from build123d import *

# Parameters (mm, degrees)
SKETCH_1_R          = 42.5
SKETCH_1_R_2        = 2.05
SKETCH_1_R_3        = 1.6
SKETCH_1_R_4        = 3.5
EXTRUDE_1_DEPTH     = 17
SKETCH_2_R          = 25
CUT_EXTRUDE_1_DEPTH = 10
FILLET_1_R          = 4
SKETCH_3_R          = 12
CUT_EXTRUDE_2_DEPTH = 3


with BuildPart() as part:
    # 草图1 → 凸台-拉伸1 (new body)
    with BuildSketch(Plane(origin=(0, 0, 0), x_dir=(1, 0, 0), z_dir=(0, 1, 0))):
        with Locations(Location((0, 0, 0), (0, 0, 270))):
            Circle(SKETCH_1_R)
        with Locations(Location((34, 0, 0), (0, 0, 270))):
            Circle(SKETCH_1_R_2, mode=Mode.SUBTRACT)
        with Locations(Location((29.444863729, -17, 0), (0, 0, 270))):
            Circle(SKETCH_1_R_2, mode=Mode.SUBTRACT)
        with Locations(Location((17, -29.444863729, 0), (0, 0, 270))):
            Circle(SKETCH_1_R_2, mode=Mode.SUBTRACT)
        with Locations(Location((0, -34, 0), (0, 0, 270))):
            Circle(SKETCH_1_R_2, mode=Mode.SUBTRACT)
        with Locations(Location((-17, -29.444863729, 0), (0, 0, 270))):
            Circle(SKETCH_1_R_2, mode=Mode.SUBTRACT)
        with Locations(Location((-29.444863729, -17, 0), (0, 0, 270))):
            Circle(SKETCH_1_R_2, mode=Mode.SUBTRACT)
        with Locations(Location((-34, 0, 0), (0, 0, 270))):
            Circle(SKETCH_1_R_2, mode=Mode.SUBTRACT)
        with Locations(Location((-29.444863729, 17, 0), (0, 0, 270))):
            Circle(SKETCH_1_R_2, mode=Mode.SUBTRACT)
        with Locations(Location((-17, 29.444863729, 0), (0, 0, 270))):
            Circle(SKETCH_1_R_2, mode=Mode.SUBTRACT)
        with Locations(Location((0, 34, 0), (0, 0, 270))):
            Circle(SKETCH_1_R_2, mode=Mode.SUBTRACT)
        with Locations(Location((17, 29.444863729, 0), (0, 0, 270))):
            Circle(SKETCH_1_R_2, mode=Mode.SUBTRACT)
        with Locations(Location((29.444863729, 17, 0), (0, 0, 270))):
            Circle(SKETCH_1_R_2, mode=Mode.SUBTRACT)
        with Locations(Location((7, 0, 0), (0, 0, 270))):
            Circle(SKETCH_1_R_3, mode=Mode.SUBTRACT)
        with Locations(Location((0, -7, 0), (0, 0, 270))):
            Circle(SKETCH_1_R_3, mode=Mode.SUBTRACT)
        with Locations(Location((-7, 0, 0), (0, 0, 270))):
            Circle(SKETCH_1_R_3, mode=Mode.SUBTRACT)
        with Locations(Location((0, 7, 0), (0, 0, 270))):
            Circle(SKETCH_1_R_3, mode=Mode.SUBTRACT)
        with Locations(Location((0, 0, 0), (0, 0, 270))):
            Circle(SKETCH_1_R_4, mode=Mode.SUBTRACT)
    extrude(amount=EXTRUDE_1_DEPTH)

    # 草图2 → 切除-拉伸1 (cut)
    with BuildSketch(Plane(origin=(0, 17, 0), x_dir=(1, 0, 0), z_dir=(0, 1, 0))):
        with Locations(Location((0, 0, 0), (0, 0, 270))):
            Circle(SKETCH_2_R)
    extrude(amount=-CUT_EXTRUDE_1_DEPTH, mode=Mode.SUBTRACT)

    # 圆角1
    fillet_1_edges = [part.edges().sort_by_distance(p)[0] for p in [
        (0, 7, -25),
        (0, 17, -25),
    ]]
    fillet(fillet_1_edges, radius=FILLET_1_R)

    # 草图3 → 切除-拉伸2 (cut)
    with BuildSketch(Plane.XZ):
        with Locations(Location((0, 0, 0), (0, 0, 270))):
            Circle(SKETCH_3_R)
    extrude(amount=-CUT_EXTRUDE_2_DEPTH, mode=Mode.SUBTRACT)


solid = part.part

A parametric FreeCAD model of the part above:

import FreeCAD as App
import Part
import Sketcher
from FreeCAD import Vector


def edges_at(feature, points):
    """Names of the edges that pass closest to the given points."""
    edges = feature.Shape.Edges
    near = lambda p: min(range(len(edges)), key=lambda i: edges[i].distToShape(Part.Vertex(*p))[0])
    return sorted({f"Edge{near(p) + 1}" for p in points})

doc = App.newDocument("Part")
body = doc.addObject("PartDesign::Body", "Body")

# Sketch on XZ plane
sketch1 = body.newObject("Sketcher::SketchObject", "Sketch")
sketch1.AttachmentSupport = (doc.getObject("XZ_Plane"), [""])
sketch1.MapMode = "FlatFace"
sketch1.addGeometry(Part.Circle(Vector(0, 0, 0), Vector(0, 0, 1), 42.5), False)
sketch1.addGeometry(Part.Circle(Vector(-29.4, -17, 0), Vector(0, 0, 1), 2), False)
sketch1.addGeometry(Part.Circle(Vector(-17, -29.4, 0), Vector(0, 0, 1), 2), False)
sketch1.addGeometry(Part.Circle(Vector(0, -34, 0), Vector(0, 0, 1), 2), False)
sketch1.addGeometry(Part.Circle(Vector(-34, 0, 0), Vector(0, 0, 1), 2), False)
sketch1.addGeometry(Part.Circle(Vector(-29.4, 17, 0), Vector(0, 0, 1), 2), False)
sketch1.addGeometry(Part.Circle(Vector(-7, 0, 0), Vector(0, 0, 1), 1.6), False)
sketch1.addGeometry(Part.Circle(Vector(-17, 29.4, 0), Vector(0, 0, 1), 2), False)
sketch1.addGeometry(Part.Circle(Vector(17, -29.4, 0), Vector(0, 0, 1), 2), False)
sketch1.addGeometry(Part.Circle(Vector(0, -7, 0), Vector(0, 0, 1), 1.6), False)
sketch1.addGeometry(Part.Circle(Vector(29.4, -17, 0), Vector(0, 0, 1), 2), False)
sketch1.addGeometry(Part.Circle(Vector(34, 0, 0), Vector(0, 0, 1), 2), False)
sketch1.addGeometry(Part.Circle(Vector(0, 0, 0), Vector(0, 0, 1), 3.5), False)
sketch1.addGeometry(Part.Circle(Vector(0, 7, 0), Vector(0, 0, 1), 1.6), False)
sketch1.addGeometry(Part.Circle(Vector(7, 0, 0), Vector(0, 0, 1), 1.6), False)
sketch1.addGeometry(Part.Circle(Vector(0, 34, 0), Vector(0, 0, 1), 2), False)
sketch1.addGeometry(Part.Circle(Vector(17, 29.4, 0), Vector(0, 0, 1), 2), False)
sketch1.addGeometry(Part.Circle(Vector(29.4, 17, 0), Vector(0, 0, 1), 2), False)
sketch1.addConstraint(Sketcher.Constraint("Coincident", 0, 3, -1, 1))
sketch1.addConstraint(Sketcher.Constraint("Coincident", 12, 3, -1, 1))
sketch1.addConstraint(Sketcher.Constraint("Equal", 1, 2))
sketch1.addConstraint(Sketcher.Constraint("Equal", 2, 3))
sketch1.addConstraint(Sketcher.Constraint("Equal", 3, 4))
sketch1.addConstraint(Sketcher.Constraint("Equal", 4, 5))
sketch1.addConstraint(Sketcher.Constraint("Equal", 5, 7))
sketch1.addConstraint(Sketcher.Constraint("Equal", 7, 8))
sketch1.addConstraint(Sketcher.Constraint("Equal", 6, 9))
sketch1.addConstraint(Sketcher.Constraint("Equal", 8, 10))
sketch1.addConstraint(Sketcher.Constraint("Equal", 10, 11))
sketch1.addConstraint(Sketcher.Constraint("Equal", 9, 13))
sketch1.addConstraint(Sketcher.Constraint("Equal", 13, 14))
sketch1.addConstraint(Sketcher.Constraint("Equal", 11, 15))
sketch1.addConstraint(Sketcher.Constraint("Equal", 15, 16))
sketch1.addConstraint(Sketcher.Constraint("Equal", 16, 17))
sketch1.addConstraint(Sketcher.Constraint("Symmetric", 7, 3, 8, 3, -1, 1))
sketch1.addConstraint(Sketcher.Constraint("Symmetric", 5, 3, 10, 3, -1, 1))
sketch1.addConstraint(Sketcher.Constraint("Symmetric", 4, 3, 11, 3, -1, 1))
sketch1.addConstraint(Sketcher.Constraint("Symmetric", 9, 3, 13, 3, -1, 1))
sketch1.addConstraint(Sketcher.Constraint("Symmetric", 6, 3, 14, 3, -1, 1))
sketch1.addConstraint(Sketcher.Constraint("Symmetric", 3, 3, 15, 3, -1, 1))
sketch1.addConstraint(Sketcher.Constraint("Symmetric", 2, 3, 16, 3, -1, 1))
sketch1.addConstraint(Sketcher.Constraint("Symmetric", 1, 3, 17, 3, -1, 1))
sketch1.addConstraint(Sketcher.Constraint("Symmetric", 2, 3, 8, 3, -2))
sketch1.addConstraint(Sketcher.Constraint("Symmetric", 1, 3, 10, 3, -2))
sketch1.addConstraint(Sketcher.Constraint("PointOnObject", 3, 3, -2))
sketch1.addConstraint(Sketcher.Constraint("PointOnObject", 4, 3, -1))
sketch1.addConstraint(Sketcher.Constraint("PointOnObject", 6, 3, -1))
sketch1.addConstraint(Sketcher.Constraint("PointOnObject", 9, 3, -2))
sketch1.addConstraint(Sketcher.Constraint("Diameter", 0, 85.0))
sketch1.addConstraint(Sketcher.Constraint("Diameter", 12, 7.0))
sketch1.addConstraint(Sketcher.Constraint("Diameter", 1, 4.1))
sketch1.addConstraint(Sketcher.Constraint("Diameter", 6, 3.2))
sketch1.addConstraint(Sketcher.Constraint("DistanceY", 1, 3, -1, 1, 17.0))
sketch1.addConstraint(Sketcher.Constraint("DistanceX", 2, 3, -1, 1, 17.0))
sketch1.addConstraint(Sketcher.Constraint("DistanceY", 3, 3, -1, 1, 34.0))
sketch1.addConstraint(Sketcher.Constraint("DistanceX", 4, 3, -1, 1, 34.0))
sketch1.addConstraint(Sketcher.Constraint("DistanceX", 6, 3, -1, 1, 7.0))
sketch1.addConstraint(Sketcher.Constraint("DistanceY", 9, 3, -1, 1, 7.0))
sketch1.addConstraint(Sketcher.Constraint("DistanceX", 1, 3, -1, 1, 29.444864))
sketch1.addConstraint(Sketcher.Constraint("DistanceY", 2, 3, -1, 1, 29.444864))
pad1 = body.newObject("PartDesign::Pad", "Pad")
pad1.Profile = sketch1
pad1.Length = 17
pad1.Reversed = True

# Sketch on XZ plane
sketch2 = body.newObject("Sketcher::SketchObject", "Sketch001")
sketch2.AttachmentSupport = (doc.getObject("XZ_Plane"), [""])
sketch2.MapMode = "FlatFace"
sketch2.AttachmentOffset = App.Placement(Vector(0, 0, -17), App.Rotation())
sketch2.addGeometry(Part.Circle(Vector(0, 0, 0), Vector(0, 0, 1), 25), False)
sketch2.addConstraint(Sketcher.Constraint("Coincident", 0, 3, -1, 1))
sketch2.addConstraint(Sketcher.Constraint("Diameter", 0, 50.0))
pocket1 = body.newObject("PartDesign::Pocket", "Pocket")
pocket1.Profile = sketch2
pocket1.Length = 10
pocket1.Reversed = True
doc.recompute()

fillet = body.newObject("PartDesign::Fillet", "Fillet")
fillet.Base = (pocket1, edges_at(pocket1, [(0, 7, -25), (0, 17, -25)]))
fillet.Radius = 4

# Sketch on XZ plane
sketch3 = body.newObject("Sketcher::SketchObject", "Sketch002")
sketch3.AttachmentSupport = (doc.getObject("XZ_Plane"), [""])
sketch3.MapMode = "FlatFace"
sketch3.addGeometry(Part.Circle(Vector(0, 0, 0), Vector(0, 0, 1), 12), False)
sketch3.addConstraint(Sketcher.Constraint("Coincident", 0, 3, -1, 1))
sketch3.addConstraint(Sketcher.Constraint("Diameter", 0, 24.0))
pocket2 = body.newObject("PartDesign::Pocket", "Pocket001")
pocket2.Profile = sketch3
pocket2.Length = 3

doc.recompute()
